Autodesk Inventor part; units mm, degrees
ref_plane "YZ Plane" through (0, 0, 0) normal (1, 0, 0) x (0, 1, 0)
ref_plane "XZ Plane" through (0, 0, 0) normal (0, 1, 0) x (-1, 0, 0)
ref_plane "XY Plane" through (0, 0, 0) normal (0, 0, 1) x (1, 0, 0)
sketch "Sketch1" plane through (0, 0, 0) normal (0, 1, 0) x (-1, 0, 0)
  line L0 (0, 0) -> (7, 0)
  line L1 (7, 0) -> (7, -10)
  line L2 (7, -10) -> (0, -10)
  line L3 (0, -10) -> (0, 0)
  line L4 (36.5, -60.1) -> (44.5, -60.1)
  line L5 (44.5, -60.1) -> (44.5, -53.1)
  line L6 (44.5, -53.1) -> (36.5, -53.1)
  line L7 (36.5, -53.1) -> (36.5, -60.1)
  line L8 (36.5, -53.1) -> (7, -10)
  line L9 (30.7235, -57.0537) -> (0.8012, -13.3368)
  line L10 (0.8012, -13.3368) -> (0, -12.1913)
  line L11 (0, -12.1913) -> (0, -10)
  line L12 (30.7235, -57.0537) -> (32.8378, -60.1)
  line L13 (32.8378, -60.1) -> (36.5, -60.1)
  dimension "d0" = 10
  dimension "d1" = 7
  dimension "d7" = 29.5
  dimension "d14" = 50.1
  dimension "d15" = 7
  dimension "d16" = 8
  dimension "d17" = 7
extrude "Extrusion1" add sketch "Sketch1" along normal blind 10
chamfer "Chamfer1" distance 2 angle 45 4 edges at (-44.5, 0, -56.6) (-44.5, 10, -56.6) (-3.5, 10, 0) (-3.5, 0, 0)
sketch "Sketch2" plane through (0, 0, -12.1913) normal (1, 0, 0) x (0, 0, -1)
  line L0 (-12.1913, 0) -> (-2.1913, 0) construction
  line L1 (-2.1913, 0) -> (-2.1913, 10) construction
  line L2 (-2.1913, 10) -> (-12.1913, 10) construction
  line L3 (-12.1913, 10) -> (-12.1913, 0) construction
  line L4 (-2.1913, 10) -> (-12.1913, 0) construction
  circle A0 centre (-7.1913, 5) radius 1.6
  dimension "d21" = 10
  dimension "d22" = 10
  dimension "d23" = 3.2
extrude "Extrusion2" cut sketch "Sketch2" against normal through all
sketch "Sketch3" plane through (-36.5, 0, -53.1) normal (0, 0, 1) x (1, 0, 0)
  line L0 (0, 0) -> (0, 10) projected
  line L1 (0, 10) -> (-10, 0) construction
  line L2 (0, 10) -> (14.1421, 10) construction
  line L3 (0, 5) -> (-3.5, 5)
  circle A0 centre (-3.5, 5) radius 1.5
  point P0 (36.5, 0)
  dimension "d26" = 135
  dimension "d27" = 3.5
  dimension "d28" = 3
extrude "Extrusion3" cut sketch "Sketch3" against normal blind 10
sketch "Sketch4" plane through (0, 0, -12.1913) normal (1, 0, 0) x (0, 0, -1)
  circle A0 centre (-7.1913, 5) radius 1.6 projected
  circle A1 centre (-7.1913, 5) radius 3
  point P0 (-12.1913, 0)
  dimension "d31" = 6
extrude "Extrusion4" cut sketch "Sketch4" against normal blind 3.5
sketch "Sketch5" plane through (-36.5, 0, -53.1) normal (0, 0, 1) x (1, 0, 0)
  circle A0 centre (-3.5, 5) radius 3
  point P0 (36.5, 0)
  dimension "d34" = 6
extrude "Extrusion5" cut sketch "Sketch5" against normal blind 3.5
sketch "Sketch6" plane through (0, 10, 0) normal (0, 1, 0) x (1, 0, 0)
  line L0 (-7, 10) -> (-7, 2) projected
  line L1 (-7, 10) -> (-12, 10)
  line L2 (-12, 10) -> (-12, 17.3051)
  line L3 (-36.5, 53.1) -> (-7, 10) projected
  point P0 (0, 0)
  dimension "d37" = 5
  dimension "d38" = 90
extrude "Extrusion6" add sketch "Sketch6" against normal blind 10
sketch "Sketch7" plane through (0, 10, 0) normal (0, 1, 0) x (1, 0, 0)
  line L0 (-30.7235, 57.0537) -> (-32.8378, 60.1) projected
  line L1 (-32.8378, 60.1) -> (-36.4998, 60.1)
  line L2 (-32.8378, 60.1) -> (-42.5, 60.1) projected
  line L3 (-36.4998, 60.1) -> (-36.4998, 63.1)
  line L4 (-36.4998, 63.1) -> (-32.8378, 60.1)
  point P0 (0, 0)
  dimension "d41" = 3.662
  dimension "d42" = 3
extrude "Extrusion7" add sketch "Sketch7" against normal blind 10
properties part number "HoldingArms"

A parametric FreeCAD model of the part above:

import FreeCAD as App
import Part
import Sketcher

V = App.Vector
Q = App.Units.Quantity


def edges_at(feature, points):
    """Names of the edges that pass closest to the given points."""
    edges = feature.Shape.Edges
    near = lambda p: min(range(len(edges)), key=lambda i: edges[i].distToShape(Part.Vertex(*p))[0])
    return sorted({f"Edge{near(p) + 1}" for p in points})


def add_polygon(sketch, points):
    """Adds a closed chain of lines whose ends are joined by coincident constraints."""
    first, n = sketch.GeometryCount, len(points)
    for a, b in zip(points, points[1:] + points[:1]):
        sketch.addGeometry(Part.LineSegment(App.Vector(*a, 0), App.Vector(*b, 0)), False)
    for i in range(n):
        sketch.addConstraint(Sketcher.Constraint("Coincident", first + i, 2, first + (i + 1) % n, 1))

doc = App.newDocument("Part")
body = doc.addObject("PartDesign::Body", "Body")

# Sketch on XZ plane
sketch1 = body.newObject("Sketcher::SketchObject", "Sketch")
sketch1.AttachmentSupport = (doc.getObject("XZ_Plane"), [""])
sketch1.MapMode = "FlatFace"
add_polygon(sketch1, [(-7, 0), (0, 0), (0, -12.1913), (-0.8012, -13.3368), (-30.7235, -57.0537), (-32.8378, -60.1), (-44.5, -60.1), (-44.5, -53.1), (-36.5, -53.1), (-7, -10)])  # lines 0-9
sketch1.addConstraint([
    Sketcher.Constraint("Horizontal", 0),
    Sketcher.Constraint("Vertical", 1),
    Sketcher.Constraint("Horizontal", 5),
    Sketcher.Constraint("Vertical", 6),
    Sketcher.Constraint("Horizontal", 7),
    Sketcher.Constraint("Vertical", 9),
    Sketcher.Constraint("Coincident", 0, 2, -1, 1),
    Sketcher.Constraint("Parallel", 3, 8),
    Sketcher.Constraint("Equal", 0, 6),
    Sketcher.Constraint("DistanceX", 0, 1, 0, 2, 7.0),
    Sketcher.Constraint("DistanceX", 7, 1, 7, 2, 8.0),
    Sketcher.Constraint("DistanceY", 9, 1, 9, 2, 10.0),
    Sketcher.Constraint("DistanceX", 7, 2, 8, 2, 29.5),
    Sketcher.Constraint("DistanceY", 4, 2, -1, 1, 60.1),
    Sketcher.Constraint("Angle", 2, Q("-124.9702 deg")),
    Sketcher.Constraint("Distance", 2, 1.398),
    Sketcher.Constraint("DistanceX", 5, 2, 5, 1, 11.6622),
    Sketcher.Constraint("DistanceY", 1, 2, 1, 1, 12.1913),
    Sketcher.Constraint("DistanceY", 3, 2, 2, 2, 43.717),
])
pad1 = body.newObject("PartDesign::Pad", "Pad")
pad1.Profile = sketch1
pad1.Length = 10
pad1.Reversed = True
doc.recompute()

chamfer = body.newObject("PartDesign::Chamfer", "Chamfer")
chamfer.Base = (pad1, edges_at(pad1, [
    (-44.5, 0, -56.6),
    (-44.5, 10, -56.6),
    (-3.5, 10, 0),
    (-3.5, 0, 0),
]))
chamfer.Size = 2

# Sketch on YZ plane
sketch2 = body.newObject("Sketcher::SketchObject", "Sketch001")
sketch2.AttachmentSupport = (doc.getObject("YZ_Plane"), [""])
sketch2.MapMode = "FlatFace"
sketch2.addGeometry(Part.Circle(V(5, -5, 0), V(0, 0, 1), 1.6), False)
sketch2.addConstraint([
    Sketcher.Constraint("Diameter", 0, 3.2),
    Sketcher.Constraint("DistanceX", -1, 1, 0, 3, 5.0),
    Sketcher.Constraint("DistanceY", 0, 3, -1, 1, 5.0),
])
pocket1 = body.newObject("PartDesign::Pocket", "Pocket")
pocket1.Profile = sketch2
pocket1.Type = "ThroughAll"

# Sketch on XY plane
sketch3 = body.newObject("Sketcher::SketchObject", "Sketch002")
sketch3.AttachmentSupport = (doc.getObject("XY_Plane"), [""])
sketch3.MapMode = "FlatFace"
sketch3.AttachmentOffset = App.Placement(V(0, 0, -53.1), App.Rotation())
sketch3.addGeometry(Part.Circle(V(-40, 5, 0), V(0, 0, 1), 1.5), False)
sketch3.addConstraint([
    Sketcher.Constraint("Diameter", 0, 3.0),
    Sketcher.Constraint("DistanceX", 0, 3, -1, 1, 40.0),
    Sketcher.Constraint("DistanceY", -1, 1, 0, 3, 5.0),
])
pocket2 = body.newObject("PartDesign::Pocket", "Pocket001")
pocket2.Profile = sketch3
pocket2.Length = 10

# Sketch on YZ plane
sketch4 = body.newObject("Sketcher::SketchObject", "Sketch003")
sketch4.AttachmentSupport = (doc.getObject("YZ_Plane"), [""])
sketch4.MapMode = "FlatFace"
sketch4.addGeometry([
    Part.Circle(V(5, -5, 0), V(0, 0, 1), 3),
    Part.Circle(V(5, -5, 0), V(0, 0, 1), 1.6),
], False)
sketch4.addConstraint([
    Sketcher.Constraint("Coincident", 1, 3, 0, 3),
    Sketcher.Constraint("Diameter", 0, 6.0),
    Sketcher.Constraint("Diameter", 1, 3.2),
    Sketcher.Constraint("DistanceX", -1, 1, 0, 3, 5.0),
    Sketcher.Constraint("DistanceY", 0, 3, -1, 1, 5.0),
])
pocket3 = body.newObject("PartDesign::Pocket", "Pocket002")
pocket3.Profile = sketch4
pocket3.Length = 3.5

# Sketch on XY plane
sketch5 = body.newObject("Sketcher::SketchObject", "Sketch004")
sketch5.AttachmentSupport = (doc.getObject("XY_Plane"), [""])
sketch5.MapMode = "FlatFace"
sketch5.AttachmentOffset = App.Placement(V(0, 0, -53.1), App.Rotation())
sketch5.addGeometry(Part.Circle(V(-40, 5, 0), V(0, 0, 1), 3), False)
sketch5.addConstraint([
    Sketcher.Constraint("Diameter", 0, 6.0),
    Sketcher.Constraint("DistanceX", 0, 3, -1, 1, 40.0),
    Sketcher.Constraint("DistanceY", -1, 1, 0, 3, 5.0),
])
pocket4 = body.newObject("PartDesign::Pocket", "Pocket003")
pocket4.Profile = sketch5
pocket4.Length = 3.5

# Sketch on XZ plane
sketch6 = body.newObject("Sketcher::SketchObject", "Sketch005")
sketch6.AttachmentSupport = (doc.getObject("XZ_Plane"), [""])
sketch6.MapMode = "FlatFace"
sketch6.AttachmentOffset = App.Placement(V(0, 0, -10), App.Rotation())
add_polygon(sketch6, [(-12, -10), (-7, -10), (-12, -17.3051)])  # lines 0-2
sketch6.addConstraint([
    Sketcher.Constraint("Horizontal", 0),
    Sketcher.Constraint("Vertical", 2),
    Sketcher.Constraint("DistanceX", 0, 1, 0, 2, 5.0),
    Sketcher.Constraint("DistanceX", 0, 2, -1, 1, 7.0),
    Sketcher.Constraint("DistanceY", 0, 2, -1, 1, 10.0),
    Sketcher.Constraint("Angle", 1, Q("-124.3899 deg")),
])
pad2 = body.newObject("PartDesign::Pad", "Pad001")
pad2.Profile = sketch6
pad2.Length = 10

# Sketch on XZ plane
sketch7 = body.newObject("Sketcher::SketchObject", "Sketch006")
sketch7.AttachmentSupport = (doc.getObject("XZ_Plane"), [""])
sketch7.MapMode = "FlatFace"
sketch7.AttachmentOffset = App.Placement(V(0, 0, -10), App.Rotation())
add_polygon(sketch7, [(-36.4998, -60.1), (-32.8378, -60.1), (-36.4998, -63.1)])  # lines 0-2
sketch7.addConstraint([
    Sketcher.Constraint("Horizontal", 0),
    Sketcher.Constraint("Vertical", 2),
    Sketcher.Constraint("DistanceY", 2, 1, 2, 2, 3.0),
    Sketcher.Constraint("DistanceX", 0, 1, 0, 2, 3.662),
    Sketcher.Constraint("DistanceY", 0, 2, -1, 1, 60.1),
    Sketcher.Constraint("DistanceX", 0, 2, -1, 1, 32.8378),
])
pad3 = body.newObject("PartDesign::Pad", "Pad002")
pad3.Profile = sketch7
pad3.Length = 10

doc.recompute()
